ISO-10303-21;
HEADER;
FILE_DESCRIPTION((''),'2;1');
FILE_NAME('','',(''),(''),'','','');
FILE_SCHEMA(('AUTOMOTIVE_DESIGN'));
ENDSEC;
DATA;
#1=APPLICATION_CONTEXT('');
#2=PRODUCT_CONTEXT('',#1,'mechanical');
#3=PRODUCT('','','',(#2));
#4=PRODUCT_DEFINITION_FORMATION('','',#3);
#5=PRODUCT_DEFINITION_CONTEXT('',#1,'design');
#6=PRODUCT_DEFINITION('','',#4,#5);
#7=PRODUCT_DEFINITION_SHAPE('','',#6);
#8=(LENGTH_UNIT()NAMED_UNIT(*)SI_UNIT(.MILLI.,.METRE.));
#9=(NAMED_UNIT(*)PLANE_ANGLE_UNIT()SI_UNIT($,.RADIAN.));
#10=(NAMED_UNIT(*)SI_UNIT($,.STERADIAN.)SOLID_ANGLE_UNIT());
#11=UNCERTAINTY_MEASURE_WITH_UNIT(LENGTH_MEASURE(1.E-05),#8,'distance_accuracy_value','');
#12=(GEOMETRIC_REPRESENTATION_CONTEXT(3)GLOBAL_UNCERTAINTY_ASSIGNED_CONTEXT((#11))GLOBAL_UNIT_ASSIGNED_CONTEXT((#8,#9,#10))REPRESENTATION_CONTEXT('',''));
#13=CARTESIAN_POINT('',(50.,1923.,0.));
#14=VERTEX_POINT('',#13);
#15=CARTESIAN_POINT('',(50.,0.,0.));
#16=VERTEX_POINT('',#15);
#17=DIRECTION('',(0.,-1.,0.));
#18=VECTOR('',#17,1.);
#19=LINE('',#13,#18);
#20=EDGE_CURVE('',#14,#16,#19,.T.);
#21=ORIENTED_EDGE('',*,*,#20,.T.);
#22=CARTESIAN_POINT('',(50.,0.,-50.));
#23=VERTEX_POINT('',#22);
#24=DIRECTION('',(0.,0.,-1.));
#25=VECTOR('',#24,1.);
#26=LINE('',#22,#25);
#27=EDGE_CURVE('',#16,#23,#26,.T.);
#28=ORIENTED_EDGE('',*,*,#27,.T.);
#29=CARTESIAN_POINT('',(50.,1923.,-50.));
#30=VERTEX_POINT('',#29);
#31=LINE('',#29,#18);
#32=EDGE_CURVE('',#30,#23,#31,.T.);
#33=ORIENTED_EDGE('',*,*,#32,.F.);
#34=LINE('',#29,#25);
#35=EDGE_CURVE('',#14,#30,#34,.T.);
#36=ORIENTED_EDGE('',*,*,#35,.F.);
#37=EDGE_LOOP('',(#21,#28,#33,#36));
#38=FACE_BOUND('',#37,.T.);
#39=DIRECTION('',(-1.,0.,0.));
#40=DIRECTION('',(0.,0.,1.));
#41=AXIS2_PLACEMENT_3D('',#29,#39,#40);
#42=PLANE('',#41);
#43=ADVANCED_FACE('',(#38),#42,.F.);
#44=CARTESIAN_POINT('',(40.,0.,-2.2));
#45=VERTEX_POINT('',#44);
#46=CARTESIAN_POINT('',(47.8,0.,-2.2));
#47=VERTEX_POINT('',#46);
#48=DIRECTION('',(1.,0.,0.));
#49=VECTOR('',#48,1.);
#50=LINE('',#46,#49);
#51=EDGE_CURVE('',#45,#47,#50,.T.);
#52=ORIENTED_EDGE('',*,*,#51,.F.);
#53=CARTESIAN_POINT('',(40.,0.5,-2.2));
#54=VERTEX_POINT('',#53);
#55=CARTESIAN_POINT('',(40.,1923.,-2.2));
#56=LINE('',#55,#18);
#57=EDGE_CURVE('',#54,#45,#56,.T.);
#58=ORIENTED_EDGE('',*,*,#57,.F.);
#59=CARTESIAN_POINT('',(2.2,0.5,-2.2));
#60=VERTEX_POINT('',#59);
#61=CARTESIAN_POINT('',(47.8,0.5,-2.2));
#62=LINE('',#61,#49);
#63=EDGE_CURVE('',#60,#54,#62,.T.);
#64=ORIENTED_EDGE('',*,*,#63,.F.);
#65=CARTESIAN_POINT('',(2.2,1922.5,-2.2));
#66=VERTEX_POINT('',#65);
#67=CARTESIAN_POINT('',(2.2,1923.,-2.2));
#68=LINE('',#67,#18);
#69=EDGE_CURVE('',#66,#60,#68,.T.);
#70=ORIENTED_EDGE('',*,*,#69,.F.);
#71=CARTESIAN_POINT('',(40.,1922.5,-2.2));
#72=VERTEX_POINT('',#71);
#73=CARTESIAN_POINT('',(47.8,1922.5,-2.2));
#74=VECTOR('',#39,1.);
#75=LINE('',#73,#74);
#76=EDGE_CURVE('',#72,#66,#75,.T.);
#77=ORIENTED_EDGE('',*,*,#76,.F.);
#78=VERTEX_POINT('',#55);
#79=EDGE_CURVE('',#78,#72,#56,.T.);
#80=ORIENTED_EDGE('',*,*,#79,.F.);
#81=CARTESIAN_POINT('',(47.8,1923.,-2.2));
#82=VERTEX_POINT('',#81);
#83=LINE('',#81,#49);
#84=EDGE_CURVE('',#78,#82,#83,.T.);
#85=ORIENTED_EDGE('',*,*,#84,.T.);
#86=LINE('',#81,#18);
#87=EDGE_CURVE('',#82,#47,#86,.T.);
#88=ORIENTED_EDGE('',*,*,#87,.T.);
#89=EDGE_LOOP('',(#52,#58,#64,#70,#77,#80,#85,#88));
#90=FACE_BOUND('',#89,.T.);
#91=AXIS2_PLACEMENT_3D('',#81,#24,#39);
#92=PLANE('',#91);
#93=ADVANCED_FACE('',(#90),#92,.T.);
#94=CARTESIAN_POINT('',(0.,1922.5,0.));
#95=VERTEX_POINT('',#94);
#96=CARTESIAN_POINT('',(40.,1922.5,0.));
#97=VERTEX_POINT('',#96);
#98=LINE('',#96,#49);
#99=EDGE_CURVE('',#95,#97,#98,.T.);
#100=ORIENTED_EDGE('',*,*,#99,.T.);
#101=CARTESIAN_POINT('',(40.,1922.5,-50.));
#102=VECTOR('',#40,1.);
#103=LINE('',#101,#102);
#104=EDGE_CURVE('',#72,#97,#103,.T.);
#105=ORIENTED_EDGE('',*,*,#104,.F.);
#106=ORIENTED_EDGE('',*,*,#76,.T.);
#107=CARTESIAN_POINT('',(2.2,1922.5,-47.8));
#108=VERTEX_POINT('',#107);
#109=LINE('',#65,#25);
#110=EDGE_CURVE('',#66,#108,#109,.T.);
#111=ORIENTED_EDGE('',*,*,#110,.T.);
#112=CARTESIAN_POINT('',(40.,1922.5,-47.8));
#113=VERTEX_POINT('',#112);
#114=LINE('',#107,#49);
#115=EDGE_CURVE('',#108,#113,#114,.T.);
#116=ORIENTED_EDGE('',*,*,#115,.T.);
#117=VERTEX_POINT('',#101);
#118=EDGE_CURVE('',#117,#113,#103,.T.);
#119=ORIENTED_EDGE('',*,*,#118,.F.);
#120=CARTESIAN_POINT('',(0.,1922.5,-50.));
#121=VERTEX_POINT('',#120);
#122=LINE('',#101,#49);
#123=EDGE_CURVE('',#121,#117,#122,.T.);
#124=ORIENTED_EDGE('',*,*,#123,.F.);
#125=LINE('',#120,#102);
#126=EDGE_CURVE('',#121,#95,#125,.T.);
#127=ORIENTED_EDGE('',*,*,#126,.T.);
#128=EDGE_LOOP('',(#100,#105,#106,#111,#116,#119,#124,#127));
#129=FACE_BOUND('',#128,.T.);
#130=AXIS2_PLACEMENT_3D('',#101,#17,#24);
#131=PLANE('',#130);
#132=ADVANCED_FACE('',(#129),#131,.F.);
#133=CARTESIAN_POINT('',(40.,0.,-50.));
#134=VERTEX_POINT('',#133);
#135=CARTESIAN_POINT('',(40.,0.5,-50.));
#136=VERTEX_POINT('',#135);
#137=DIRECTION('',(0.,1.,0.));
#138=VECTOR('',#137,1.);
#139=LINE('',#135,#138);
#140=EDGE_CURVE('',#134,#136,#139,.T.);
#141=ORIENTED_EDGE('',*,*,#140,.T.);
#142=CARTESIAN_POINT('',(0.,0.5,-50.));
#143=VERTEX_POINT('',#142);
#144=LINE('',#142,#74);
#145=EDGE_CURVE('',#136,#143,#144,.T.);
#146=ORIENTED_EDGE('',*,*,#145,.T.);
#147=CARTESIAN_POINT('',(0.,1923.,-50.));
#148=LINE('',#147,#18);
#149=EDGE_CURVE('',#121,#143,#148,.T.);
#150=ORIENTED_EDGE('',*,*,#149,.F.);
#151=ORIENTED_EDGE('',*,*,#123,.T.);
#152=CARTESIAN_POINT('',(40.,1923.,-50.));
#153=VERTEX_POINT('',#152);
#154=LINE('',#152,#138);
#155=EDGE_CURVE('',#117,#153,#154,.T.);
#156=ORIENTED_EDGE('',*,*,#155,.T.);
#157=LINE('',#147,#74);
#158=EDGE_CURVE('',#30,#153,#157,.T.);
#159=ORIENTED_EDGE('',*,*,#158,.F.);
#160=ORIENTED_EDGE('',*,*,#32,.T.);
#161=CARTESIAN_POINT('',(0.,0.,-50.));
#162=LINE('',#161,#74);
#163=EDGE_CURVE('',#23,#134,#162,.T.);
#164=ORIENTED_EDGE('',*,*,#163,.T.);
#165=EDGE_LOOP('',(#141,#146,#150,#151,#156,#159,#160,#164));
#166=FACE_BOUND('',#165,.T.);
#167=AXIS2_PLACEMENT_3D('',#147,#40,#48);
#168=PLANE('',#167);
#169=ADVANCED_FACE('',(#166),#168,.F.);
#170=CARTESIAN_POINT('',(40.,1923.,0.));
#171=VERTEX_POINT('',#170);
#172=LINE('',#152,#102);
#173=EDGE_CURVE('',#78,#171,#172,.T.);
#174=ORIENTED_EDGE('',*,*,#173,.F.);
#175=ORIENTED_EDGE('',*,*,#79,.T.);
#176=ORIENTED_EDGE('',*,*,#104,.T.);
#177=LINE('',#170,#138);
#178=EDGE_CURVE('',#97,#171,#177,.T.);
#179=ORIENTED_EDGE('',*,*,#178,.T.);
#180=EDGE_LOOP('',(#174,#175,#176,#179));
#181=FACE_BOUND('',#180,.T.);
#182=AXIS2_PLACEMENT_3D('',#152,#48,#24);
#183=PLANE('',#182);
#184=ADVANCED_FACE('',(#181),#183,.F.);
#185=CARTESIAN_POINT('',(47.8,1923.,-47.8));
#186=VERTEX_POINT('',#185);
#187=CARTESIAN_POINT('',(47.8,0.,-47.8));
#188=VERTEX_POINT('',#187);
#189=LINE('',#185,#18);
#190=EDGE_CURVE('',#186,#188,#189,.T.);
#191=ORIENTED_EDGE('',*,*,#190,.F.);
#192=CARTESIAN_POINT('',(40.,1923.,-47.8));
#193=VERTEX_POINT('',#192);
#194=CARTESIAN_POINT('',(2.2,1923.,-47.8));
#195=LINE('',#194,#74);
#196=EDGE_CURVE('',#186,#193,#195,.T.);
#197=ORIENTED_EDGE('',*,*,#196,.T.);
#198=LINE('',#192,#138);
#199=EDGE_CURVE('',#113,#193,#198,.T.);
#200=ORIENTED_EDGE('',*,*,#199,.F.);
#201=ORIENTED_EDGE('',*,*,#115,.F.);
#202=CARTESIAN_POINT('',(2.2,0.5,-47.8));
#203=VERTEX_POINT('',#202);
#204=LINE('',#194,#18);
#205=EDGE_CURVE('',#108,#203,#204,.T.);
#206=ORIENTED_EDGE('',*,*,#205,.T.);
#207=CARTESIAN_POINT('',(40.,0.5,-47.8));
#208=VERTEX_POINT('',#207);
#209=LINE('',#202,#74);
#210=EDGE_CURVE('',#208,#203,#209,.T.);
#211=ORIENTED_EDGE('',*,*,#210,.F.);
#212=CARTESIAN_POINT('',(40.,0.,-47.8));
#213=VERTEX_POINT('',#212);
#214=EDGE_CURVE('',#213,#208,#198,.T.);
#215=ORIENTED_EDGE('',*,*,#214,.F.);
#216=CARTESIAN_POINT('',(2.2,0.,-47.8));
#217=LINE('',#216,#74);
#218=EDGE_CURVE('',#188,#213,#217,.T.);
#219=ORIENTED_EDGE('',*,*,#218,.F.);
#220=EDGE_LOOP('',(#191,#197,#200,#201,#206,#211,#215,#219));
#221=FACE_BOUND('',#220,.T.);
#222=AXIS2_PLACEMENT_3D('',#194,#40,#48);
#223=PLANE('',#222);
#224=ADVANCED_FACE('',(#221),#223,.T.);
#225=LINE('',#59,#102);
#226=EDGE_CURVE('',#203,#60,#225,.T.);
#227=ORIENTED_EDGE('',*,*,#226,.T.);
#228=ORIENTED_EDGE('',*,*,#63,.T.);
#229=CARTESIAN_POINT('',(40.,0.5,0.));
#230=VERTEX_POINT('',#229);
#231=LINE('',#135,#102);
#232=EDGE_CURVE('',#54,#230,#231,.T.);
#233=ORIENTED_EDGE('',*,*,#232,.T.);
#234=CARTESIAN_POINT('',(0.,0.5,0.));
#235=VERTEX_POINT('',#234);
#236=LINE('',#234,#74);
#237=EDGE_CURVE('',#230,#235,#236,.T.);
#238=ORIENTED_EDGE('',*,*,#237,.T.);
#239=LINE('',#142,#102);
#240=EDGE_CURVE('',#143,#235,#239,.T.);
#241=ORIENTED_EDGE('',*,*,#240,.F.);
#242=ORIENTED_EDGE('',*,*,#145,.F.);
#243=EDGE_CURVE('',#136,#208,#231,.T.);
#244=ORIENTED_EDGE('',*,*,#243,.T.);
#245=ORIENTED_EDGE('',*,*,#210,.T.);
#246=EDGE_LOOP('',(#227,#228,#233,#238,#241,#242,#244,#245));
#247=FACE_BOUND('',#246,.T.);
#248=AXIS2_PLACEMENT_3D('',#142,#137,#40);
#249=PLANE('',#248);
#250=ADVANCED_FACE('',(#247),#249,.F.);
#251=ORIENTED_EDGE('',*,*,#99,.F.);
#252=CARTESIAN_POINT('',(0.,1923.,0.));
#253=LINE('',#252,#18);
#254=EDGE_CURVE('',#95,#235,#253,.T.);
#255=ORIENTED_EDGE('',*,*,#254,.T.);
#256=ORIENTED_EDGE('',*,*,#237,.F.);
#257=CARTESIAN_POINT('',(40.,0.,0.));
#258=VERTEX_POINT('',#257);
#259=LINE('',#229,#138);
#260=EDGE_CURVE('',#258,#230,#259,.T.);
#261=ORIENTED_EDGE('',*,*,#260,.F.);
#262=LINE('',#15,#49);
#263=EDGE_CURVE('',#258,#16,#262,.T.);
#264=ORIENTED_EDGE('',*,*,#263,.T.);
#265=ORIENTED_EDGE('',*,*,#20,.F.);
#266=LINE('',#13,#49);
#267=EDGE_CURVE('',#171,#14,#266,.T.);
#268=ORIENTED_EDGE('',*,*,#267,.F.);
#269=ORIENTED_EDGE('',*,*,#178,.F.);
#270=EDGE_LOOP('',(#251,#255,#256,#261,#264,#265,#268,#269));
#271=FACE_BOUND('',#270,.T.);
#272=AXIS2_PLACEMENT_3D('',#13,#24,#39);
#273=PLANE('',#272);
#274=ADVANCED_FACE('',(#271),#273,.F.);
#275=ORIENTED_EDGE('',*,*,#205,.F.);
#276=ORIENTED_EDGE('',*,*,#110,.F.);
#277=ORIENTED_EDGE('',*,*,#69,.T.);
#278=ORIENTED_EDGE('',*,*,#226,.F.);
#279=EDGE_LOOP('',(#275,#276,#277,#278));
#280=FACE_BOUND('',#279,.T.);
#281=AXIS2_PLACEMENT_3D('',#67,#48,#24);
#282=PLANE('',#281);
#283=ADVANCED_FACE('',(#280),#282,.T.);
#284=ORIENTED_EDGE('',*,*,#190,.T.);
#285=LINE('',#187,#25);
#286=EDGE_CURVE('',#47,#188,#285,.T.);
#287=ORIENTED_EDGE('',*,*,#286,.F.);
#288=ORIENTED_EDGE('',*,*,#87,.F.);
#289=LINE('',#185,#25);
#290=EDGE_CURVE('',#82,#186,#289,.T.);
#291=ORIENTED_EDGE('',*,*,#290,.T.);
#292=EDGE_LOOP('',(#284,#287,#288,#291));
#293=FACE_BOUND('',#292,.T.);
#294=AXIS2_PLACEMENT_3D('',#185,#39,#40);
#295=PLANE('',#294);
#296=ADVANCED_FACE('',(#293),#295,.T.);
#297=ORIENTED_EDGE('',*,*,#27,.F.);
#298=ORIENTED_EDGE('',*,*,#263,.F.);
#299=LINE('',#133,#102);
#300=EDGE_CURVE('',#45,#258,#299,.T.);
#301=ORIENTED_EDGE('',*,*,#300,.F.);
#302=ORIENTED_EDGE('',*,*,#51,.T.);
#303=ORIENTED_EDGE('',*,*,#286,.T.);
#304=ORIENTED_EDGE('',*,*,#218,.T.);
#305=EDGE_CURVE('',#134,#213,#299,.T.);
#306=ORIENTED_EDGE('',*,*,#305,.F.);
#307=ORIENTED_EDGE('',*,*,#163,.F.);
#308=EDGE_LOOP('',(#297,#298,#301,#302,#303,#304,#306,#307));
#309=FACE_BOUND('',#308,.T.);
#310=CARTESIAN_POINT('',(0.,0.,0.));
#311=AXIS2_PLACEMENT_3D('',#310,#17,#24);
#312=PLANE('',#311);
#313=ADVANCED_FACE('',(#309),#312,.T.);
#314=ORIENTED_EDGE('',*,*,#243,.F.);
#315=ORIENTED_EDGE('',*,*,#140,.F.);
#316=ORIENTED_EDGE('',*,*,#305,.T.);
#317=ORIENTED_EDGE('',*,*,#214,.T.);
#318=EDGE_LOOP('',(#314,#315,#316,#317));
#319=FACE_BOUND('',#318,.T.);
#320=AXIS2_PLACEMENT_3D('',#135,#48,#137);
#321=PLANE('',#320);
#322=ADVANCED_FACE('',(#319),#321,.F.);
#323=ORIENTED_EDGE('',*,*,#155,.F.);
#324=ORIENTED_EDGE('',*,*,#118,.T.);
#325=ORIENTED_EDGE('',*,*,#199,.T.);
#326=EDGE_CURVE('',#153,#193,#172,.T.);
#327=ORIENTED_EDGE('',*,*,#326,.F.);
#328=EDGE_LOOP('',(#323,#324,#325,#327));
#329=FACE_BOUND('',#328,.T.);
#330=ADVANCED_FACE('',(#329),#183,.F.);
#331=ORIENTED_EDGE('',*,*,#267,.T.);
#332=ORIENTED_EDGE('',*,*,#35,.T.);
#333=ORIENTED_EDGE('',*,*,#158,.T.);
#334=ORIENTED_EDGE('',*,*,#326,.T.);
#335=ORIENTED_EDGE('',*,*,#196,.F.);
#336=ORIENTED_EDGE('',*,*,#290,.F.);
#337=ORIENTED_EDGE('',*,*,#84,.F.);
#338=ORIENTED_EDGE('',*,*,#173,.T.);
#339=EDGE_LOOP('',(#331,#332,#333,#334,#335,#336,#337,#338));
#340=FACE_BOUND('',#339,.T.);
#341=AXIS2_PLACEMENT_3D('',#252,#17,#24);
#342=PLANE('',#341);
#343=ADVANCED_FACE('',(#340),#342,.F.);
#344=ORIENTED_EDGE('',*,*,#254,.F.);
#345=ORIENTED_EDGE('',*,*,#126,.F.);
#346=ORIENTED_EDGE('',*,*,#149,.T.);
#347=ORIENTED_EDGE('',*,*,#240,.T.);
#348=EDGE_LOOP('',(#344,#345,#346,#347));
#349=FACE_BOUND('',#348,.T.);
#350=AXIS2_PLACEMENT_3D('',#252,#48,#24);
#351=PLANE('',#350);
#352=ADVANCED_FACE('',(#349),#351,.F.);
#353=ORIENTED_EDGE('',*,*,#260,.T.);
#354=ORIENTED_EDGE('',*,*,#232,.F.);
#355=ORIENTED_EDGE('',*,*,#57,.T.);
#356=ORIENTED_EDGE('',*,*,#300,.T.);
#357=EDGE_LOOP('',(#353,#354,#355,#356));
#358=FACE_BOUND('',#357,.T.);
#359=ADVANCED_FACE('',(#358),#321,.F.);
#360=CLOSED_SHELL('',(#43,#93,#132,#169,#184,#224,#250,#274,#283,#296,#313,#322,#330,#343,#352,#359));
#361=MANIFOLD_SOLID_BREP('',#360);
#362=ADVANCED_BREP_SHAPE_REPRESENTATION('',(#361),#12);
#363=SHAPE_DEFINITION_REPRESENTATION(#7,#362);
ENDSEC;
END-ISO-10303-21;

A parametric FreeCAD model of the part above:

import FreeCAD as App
import Part
import Sketcher
Q = App.Units.Quantity


def add_polygon(sketch, points):
    """Adds a closed chain of lines whose ends are joined by coincident constraints."""
    first, n = sketch.GeometryCount, len(points)
    for a, b in zip(points, points[1:] + points[:1]):
        sketch.addGeometry(Part.LineSegment(App.Vector(*a, 0), App.Vector(*b, 0)), False)
    for i in range(n):
        sketch.addConstraint(Sketcher.Constraint("Coincident", first + i, 2, first + (i + 1) % n, 1))

doc = App.newDocument("Part")
body = doc.addObject("PartDesign::Body", "Body")

# Sketch on XZ plane
sketch1 = doc.addObject("Sketcher::SketchObject", "Sketch")
body.addObject(sketch1)
sketch1.AttachmentSupport = (doc.XZ_Plane, [""])
sketch1.MapMode = "FlatFace"
add_polygon(sketch1, [(0, -50), (0, 0), (50, 0), (50, -50)])  # lines 0-3
add_polygon(sketch1, [(48, -2), (2, -2), (2, -48), (48, -48)])  # lines 4-7
sketch1.addConstraint([
    Sketcher.Constraint("Vertical", 0),
    Sketcher.Constraint("Horizontal", 1),
    Sketcher.Constraint("Vertical", 2),
    Sketcher.Constraint("Horizontal", 3),
    Sketcher.Constraint("Horizontal", 4),
    Sketcher.Constraint("Vertical", 5),
    Sketcher.Constraint("Horizontal", 6),
    Sketcher.Constraint("Vertical", 7),
    Sketcher.Constraint("Coincident", 0, 2, -1, 1),
    Sketcher.Constraint("Equal", 3, 0),
    Sketcher.Constraint("Equal", 6, 5),
    Sketcher.Constraint("DistanceX", 1, 1, 1, 2, Q("50 mm")),
    Sketcher.Constraint("DistanceX", 4, 2, 4, 1, Q("45.6 mm")),
    Sketcher.Constraint("DistanceX", -1, 1, 4, 2, Q("2.2 mm")),
    Sketcher.Constraint("DistanceY", 4, 2, -1, 1, Q("2.2 mm")),
])
pad1 = doc.addObject("PartDesign::Pad", "Pad")
body.addObject(pad1)
pad1.Profile = sketch1
pad1.Length = 1923
pad1.Reversed = True

# Sketch on XY plane
sketch2 = doc.addObject("Sketcher::SketchObject", "Sketch001")
body.addObject(sketch2)
sketch2.AttachmentSupport = (doc.XY_Plane, [""])
sketch2.MapMode = "FlatFace"
add_polygon(sketch2, [(0, 0.5), (0, 0), (40, 0), (40, 0.5)])  # lines 0-3
add_polygon(sketch2, [(0, 1923), (0, 1922.5), (40, 1922.5), (40, 1923)])  # lines 4-7
sketch2.addConstraint([
    Sketcher.Constraint("Vertical", 0),
    Sketcher.Constraint("Horizontal", 1),
    Sketcher.Constraint("Vertical", 2),
    Sketcher.Constraint("Horizontal", 3),
    Sketcher.Constraint("Vertical", 4),
    Sketcher.Constraint("Horizontal", 5),
    Sketcher.Constraint("Vertical", 6),
    Sketcher.Constraint("Horizontal", 7),
    Sketcher.Constraint("Coincident", 0, 2, -1, 1),
    Sketcher.Constraint("PointOnObject", 4, 2, -2),
    Sketcher.Constraint("Vertical", 2, 2, 5, 2),
    Sketcher.Constraint("Equal", 2, 4),
    Sketcher.Constraint("DistanceX", 1, 1, 1, 2, Q("40 mm")),
    Sketcher.Constraint("DistanceY", 0, 2, 0, 1, Q("0.5 mm")),
    Sketcher.Constraint("DistanceY", -1, 1, 6, 2, Q("1923 mm")),
])
pocket1 = doc.addObject("PartDesign::Pocket", "Pocket")
body.addObject(pocket1)
pocket1.Profile = sketch2
pocket1.Length = 50

doc.recompute()
